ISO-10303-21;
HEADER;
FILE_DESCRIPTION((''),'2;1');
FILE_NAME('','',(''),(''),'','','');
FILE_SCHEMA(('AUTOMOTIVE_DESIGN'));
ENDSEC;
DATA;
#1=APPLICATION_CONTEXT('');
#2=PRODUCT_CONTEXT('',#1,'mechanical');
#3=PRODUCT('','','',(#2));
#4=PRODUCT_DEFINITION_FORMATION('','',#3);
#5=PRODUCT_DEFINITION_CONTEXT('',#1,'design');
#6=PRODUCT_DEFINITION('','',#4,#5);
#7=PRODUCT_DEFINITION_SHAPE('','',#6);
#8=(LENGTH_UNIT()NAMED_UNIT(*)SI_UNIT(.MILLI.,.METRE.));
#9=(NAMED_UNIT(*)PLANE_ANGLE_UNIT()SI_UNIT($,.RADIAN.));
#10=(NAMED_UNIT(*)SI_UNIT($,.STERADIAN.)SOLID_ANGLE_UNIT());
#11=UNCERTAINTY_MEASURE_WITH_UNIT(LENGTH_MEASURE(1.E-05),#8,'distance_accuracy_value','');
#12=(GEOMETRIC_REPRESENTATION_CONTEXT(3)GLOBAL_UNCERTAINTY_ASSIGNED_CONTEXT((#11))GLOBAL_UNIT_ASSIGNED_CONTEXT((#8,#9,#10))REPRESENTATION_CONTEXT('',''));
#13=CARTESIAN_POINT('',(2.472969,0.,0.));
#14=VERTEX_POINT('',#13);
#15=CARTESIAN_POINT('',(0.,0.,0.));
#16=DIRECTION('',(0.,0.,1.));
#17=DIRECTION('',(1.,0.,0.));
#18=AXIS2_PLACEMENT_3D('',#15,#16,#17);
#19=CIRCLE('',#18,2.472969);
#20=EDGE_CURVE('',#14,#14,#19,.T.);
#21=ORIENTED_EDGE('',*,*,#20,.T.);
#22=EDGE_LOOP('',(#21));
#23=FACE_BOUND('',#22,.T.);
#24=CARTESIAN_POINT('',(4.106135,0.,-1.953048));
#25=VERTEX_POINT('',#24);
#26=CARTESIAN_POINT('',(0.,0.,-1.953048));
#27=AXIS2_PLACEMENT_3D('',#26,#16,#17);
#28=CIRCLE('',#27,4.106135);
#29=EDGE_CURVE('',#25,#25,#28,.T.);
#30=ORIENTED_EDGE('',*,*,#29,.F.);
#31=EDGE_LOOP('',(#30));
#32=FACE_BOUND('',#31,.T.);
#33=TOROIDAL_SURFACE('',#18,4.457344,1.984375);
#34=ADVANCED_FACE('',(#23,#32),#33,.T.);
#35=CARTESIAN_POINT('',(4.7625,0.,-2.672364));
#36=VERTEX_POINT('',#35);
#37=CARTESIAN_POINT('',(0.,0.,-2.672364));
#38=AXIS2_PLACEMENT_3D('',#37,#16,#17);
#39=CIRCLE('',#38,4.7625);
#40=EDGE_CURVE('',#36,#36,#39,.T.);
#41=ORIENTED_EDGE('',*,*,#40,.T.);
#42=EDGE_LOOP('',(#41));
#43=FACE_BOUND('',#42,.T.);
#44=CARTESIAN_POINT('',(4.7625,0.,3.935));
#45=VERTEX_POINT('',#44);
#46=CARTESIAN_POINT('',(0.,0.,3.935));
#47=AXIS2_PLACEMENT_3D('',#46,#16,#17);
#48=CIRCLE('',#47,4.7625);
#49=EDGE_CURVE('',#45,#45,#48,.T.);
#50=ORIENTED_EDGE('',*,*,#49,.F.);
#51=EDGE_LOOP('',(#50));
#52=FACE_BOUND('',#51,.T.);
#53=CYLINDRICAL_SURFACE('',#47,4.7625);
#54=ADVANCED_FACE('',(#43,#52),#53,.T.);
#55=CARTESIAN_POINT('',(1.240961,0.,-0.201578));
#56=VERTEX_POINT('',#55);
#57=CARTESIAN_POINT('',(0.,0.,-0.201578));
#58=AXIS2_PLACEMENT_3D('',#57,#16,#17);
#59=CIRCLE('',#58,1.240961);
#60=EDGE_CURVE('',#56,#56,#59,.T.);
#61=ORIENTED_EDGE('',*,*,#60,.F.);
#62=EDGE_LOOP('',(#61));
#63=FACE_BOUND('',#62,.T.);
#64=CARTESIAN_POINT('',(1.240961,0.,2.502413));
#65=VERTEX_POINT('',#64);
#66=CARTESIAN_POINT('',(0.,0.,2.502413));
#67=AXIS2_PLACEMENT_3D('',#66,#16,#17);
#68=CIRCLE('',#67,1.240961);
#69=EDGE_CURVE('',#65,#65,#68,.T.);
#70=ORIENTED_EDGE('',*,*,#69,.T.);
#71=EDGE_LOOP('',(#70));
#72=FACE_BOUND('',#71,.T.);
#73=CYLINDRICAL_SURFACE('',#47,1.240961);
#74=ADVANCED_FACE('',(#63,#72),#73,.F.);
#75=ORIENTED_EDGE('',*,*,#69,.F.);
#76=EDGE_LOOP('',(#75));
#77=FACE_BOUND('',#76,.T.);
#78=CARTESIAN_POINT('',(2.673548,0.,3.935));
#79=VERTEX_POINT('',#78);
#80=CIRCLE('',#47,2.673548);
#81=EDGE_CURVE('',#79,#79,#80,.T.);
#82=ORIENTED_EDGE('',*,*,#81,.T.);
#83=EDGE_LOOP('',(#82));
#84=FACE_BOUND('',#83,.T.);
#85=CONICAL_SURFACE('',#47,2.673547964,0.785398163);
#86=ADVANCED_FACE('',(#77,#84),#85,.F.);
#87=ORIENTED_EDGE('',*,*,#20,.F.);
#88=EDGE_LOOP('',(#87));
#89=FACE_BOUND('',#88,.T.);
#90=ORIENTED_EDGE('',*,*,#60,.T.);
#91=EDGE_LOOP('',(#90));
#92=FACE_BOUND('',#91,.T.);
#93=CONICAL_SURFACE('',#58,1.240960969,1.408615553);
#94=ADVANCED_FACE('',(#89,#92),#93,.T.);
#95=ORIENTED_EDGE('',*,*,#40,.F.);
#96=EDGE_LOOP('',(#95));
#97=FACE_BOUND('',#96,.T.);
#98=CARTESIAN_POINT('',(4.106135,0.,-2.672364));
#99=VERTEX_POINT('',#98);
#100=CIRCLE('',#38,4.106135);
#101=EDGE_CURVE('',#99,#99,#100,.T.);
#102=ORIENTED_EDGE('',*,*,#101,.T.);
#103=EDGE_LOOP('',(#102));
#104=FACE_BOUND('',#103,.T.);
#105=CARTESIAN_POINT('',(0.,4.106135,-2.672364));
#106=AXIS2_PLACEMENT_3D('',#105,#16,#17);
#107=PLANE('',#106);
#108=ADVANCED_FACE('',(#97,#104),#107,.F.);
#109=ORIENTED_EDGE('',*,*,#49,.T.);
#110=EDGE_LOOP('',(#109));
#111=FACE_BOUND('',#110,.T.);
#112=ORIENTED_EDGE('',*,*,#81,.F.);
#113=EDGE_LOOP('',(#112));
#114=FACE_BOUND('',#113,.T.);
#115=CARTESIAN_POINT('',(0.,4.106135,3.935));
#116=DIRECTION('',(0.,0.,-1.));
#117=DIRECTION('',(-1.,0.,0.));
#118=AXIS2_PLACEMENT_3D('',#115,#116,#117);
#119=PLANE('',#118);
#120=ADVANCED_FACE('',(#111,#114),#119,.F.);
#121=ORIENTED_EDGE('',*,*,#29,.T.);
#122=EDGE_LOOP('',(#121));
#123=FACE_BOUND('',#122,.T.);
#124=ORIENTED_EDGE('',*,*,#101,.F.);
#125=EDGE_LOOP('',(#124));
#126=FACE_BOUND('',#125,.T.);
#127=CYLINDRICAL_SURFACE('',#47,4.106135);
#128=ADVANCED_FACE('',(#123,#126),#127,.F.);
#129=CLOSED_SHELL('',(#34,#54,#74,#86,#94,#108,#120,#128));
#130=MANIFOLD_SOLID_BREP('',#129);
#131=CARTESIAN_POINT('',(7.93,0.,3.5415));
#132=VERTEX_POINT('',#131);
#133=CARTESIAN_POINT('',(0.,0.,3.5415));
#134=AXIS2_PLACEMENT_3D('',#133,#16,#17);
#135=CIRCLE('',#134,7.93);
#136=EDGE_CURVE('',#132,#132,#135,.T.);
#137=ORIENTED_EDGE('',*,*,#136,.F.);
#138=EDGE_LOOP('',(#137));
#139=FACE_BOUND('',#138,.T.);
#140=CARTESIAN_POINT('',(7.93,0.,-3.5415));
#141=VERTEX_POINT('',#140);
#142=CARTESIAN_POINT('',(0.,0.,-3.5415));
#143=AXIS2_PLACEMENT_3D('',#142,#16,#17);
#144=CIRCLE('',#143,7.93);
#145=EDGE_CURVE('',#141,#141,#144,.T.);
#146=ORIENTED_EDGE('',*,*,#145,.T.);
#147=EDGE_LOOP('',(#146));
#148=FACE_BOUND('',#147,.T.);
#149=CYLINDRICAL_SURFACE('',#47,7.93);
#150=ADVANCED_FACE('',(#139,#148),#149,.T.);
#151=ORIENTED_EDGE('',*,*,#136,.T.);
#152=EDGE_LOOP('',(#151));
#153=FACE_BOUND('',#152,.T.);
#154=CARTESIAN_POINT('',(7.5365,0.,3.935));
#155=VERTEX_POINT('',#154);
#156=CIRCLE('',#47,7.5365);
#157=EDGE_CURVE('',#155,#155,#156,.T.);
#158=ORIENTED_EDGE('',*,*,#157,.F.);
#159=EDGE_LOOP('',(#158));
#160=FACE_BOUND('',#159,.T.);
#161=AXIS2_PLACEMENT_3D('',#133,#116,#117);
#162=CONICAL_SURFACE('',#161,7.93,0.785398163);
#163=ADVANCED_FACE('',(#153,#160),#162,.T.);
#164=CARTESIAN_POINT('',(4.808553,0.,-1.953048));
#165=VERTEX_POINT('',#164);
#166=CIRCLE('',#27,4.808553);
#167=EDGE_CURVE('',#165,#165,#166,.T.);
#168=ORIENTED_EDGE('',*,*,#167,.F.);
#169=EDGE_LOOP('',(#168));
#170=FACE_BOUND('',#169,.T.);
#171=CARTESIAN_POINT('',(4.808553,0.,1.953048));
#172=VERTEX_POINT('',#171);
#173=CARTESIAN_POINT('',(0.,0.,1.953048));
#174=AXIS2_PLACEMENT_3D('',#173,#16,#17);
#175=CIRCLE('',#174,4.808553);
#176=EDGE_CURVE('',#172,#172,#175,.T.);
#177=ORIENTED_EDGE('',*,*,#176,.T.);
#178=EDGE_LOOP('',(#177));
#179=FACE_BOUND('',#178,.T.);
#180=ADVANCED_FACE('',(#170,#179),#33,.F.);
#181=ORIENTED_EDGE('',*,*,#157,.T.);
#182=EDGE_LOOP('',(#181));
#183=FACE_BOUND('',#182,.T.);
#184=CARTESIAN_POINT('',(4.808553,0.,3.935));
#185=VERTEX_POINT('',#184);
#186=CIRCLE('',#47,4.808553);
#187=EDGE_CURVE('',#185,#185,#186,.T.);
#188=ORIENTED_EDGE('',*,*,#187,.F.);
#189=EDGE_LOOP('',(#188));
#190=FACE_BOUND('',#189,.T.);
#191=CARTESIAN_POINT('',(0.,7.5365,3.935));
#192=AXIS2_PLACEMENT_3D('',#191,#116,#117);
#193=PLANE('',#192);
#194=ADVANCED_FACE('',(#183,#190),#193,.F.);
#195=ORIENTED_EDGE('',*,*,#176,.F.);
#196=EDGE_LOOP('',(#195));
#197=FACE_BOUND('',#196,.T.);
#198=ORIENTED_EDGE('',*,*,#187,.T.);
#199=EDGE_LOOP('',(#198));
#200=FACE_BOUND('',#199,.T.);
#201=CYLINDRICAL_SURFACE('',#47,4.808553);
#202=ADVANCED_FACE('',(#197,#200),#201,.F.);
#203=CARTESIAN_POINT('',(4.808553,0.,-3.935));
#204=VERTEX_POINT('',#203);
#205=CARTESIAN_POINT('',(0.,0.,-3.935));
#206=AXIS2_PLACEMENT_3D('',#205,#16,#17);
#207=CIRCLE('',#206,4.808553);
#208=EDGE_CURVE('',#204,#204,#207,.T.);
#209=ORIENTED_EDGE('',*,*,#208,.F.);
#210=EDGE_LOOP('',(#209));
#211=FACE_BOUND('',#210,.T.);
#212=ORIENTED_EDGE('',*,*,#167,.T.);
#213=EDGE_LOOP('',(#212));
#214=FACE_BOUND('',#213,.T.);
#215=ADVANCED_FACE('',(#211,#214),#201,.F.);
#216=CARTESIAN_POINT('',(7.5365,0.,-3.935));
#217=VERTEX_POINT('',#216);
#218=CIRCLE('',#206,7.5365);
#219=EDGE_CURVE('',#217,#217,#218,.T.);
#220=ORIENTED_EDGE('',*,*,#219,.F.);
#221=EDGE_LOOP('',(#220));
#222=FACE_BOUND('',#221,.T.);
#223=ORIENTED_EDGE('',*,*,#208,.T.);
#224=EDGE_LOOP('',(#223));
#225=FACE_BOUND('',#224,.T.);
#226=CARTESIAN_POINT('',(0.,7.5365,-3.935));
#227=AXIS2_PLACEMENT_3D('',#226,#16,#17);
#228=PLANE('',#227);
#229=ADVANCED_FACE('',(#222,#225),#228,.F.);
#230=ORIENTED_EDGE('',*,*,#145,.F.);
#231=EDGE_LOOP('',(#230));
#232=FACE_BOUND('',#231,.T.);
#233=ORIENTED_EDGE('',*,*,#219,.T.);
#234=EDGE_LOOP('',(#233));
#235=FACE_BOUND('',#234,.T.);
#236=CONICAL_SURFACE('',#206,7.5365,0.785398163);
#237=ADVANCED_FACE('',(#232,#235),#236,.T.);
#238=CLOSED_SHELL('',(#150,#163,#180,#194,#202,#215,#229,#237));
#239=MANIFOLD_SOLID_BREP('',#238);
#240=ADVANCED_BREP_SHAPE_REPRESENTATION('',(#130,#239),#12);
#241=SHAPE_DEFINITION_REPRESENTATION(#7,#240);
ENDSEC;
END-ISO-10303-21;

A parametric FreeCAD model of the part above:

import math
import FreeCAD as App
import Part
import Sketcher
Q = App.Units.Quantity

doc = App.newDocument("Part")
params = doc.addObject("Spreadsheet::Sheet", "Params")
for row, (alias, value) in enumerate([
    ("sketch1_radius", "0.078125 in"),
    ("revolution_angle", "360 deg"),
    ("sketch2_radius", "0.078125 in"),
    ("revolution2_angle", "360 deg"),
    ("sketch3_radius", "0.078125 in"),
    ("revolution3_angle", "360 deg"),
], start=1):
    params.set(f"A{row}", alias)
    params.set(f"B{row}", "=" + value)
    params.setAlias(f"B{row}", alias)

body = doc.addObject("PartDesign::Body", "Body")

# Sketch on YZ plane
sketch1 = body.newObject("Sketcher::SketchObject", "Sketch")
sketch1.AttachmentSupport = (doc.getObject("YZ_Plane"), [""])
sketch1.MapMode = "FlatFace"
sketch1.addGeometry(Part.LineSegment(App.Vector(7.9, -3.5, 0), App.Vector(7.9, 3.5, 0)), False)
sketch1.addGeometry(Part.LineSegment(App.Vector(7.9, 3.5, 0), App.Vector(7.5, 3.9, 0)), False)
sketch1.addGeometry(Part.LineSegment(App.Vector(7.5, 3.9, 0), App.Vector(4.8, 3.9, 0)), False)
sketch1.addGeometry(Part.LineSegment(App.Vector(4.8, 3.9, 0), App.Vector(4.8, 2, 0)), False)
sketch1.addGeometry(Part.ArcOfCircle(Part.Circle(App.Vector(4.5, 0, 0), App.Vector(0, 0, 1), 2), math.radians(-80), math.radians(80)), False)
sketch1.addGeometry(Part.LineSegment(App.Vector(4.8, -2, 0), App.Vector(4.8, -3.9, 0)), False)
sketch1.addGeometry(Part.LineSegment(App.Vector(4.8, -3.9, 0), App.Vector(7.5, -3.9, 0)), False)
sketch1.addGeometry(Part.LineSegment(App.Vector(7.5, -3.9, 0), App.Vector(7.9, -3.5, 0)), False)
sketch1.addConstraint(Sketcher.Constraint("Coincident", 0, 2, 1, 1))
sketch1.addConstraint(Sketcher.Constraint("Coincident", 1, 2, 2, 1))
sketch1.addConstraint(Sketcher.Constraint("Coincident", 2, 2, 3, 1))
sketch1.addConstraint(Sketcher.Constraint("Coincident", 3, 2, 4, 2))
sketch1.addConstraint(Sketcher.Constraint("Coincident", 4, 1, 5, 1))
sketch1.addConstraint(Sketcher.Constraint("Coincident", 5, 2, 6, 1))
sketch1.addConstraint(Sketcher.Constraint("Coincident", 6, 2, 7, 1))
sketch1.addConstraint(Sketcher.Constraint("Coincident", 7, 2, 0, 1))
sketch1.addConstraint(Sketcher.Constraint("Vertical", 0))
sketch1.addConstraint(Sketcher.Constraint("Horizontal", 2))
sketch1.addConstraint(Sketcher.Constraint("Vertical", 3))
sketch1.addConstraint(Sketcher.Constraint("Vertical", 5))
sketch1.addConstraint(Sketcher.Constraint("Horizontal", 6))
sketch1.addConstraint(Sketcher.Constraint("Symmetric", 3, 2, 4, 1, -1))
sketch1.addConstraint(Sketcher.Constraint("Symmetric", 1, 2, 6, 2, -1))
sketch1.addConstraint(Sketcher.Constraint("Perpendicular", 1, 7))
sketch1.addConstraint(Sketcher.Constraint("Equal", 1, 7))
sketch1.addConstraint(Sketcher.Constraint("Radius", 4, Q("0.078125 in")))
sketch1.addConstraint(Sketcher.Constraint("DistanceY", 0, 1, 0, 2, Q("7.083 mm")))
sketch1.addConstraint(Sketcher.Constraint("DistanceY", 3, 2, 3, 1, Q("1.981952 mm")))
sketch1.addConstraint(Sketcher.Constraint("DistanceX", -1, 1, 0, 2, Q("7.93 mm")))
sketch1.addConstraint(Sketcher.Constraint("DistanceX", -1, 1, 1, 2, Q("7.5365 mm")))
sketch1.addConstraint(Sketcher.Constraint("DistanceX", 2, 2, 2, 1, Q("2.727947 mm")))
sketch1.setExpression("Constraints[17]", "Params.sketch1_radius")
revolution = body.newObject("PartDesign::Revolution", "Revolution")
revolution.Profile = sketch1
revolution.ReferenceAxis = (sketch1, ["V_Axis"])
revolution.setExpression("Angle", "Params.revolution_angle")
body2 = doc.addObject("PartDesign::Body", "Body001")

# Sketch on YZ plane
sketch2 = body2.newObject("Sketcher::SketchObject", "Sketch001")
sketch2.AttachmentSupport = (doc.getObject("YZ_Plane001"), [""])
sketch2.MapMode = "FlatFace"
sketch2.addGeometry(Part.LineSegment(App.Vector(4.1, 2, 0), App.Vector(4.1, 3.9, 0)), False)
sketch2.addGeometry(Part.LineSegment(App.Vector(4.1, 3.9, 0), App.Vector(2.7, 3.9, 0)), False)
sketch2.addGeometry(Part.LineSegment(App.Vector(2.7, 3.9, 0), App.Vector(1.2, 2.5, 0)), False)
sketch2.addGeometry(Part.LineSegment(App.Vector(1.2, 2.5, 0), App.Vector(1.2, -0.2, 0)), False)
sketch2.addGeometry(Part.LineSegment(App.Vector(1.2, -0.2, 0), App.Vector(2.5, 0, 0)), False)
sketch2.addGeometry(Part.ArcOfCircle(Part.Circle(App.Vector(4.5, 0, 0), App.Vector(0, 0, 1), 2), math.radians(100), math.radians(180)), False)
sketch2.addConstraint(Sketcher.Constraint("Coincident", 0, 2, 1, 1))
sketch2.addConstraint(Sketcher.Constraint("Coincident", 1, 2, 2, 1))
sketch2.addConstraint(Sketcher.Constraint("Coincident", 2, 2, 3, 1))
sketch2.addConstraint(Sketcher.Constraint("Coincident", 3, 2, 4, 1))
sketch2.addConstraint(Sketcher.Constraint("Coincident", 4, 2, 5, 2))
sketch2.addConstraint(Sketcher.Constraint("Coincident", 5, 1, 0, 1))
sketch2.addConstraint(Sketcher.Constraint("Vertical", 0))
sketch2.addConstraint(Sketcher.Constraint("Horizontal", 1))
sketch2.addConstraint(Sketcher.Constraint("Vertical", 3))
sketch2.addConstraint(Sketcher.Constraint("PointOnObject", 5, 3, -1))
sketch2.addConstraint(Sketcher.Constraint("PointOnObject", 4, 2, -1))
sketch2.addConstraint(Sketcher.Constraint("Angle", 2, Q("-135 deg")))
sketch2.addConstraint(Sketcher.Constraint("Radius", 5, Q("0.078125 in")))
sketch2.addConstraint(Sketcher.Constraint("DistanceY", 0, 1, 0, 2, Q("1.981952 mm")))
sketch2.addConstraint(Sketcher.Constraint("DistanceY", 3, 2, 3, 1, Q("2.703991 mm")))
sketch2.addConstraint(Sketcher.Constraint("DistanceY", -1, 1, 0, 2, Q("3.935 mm")))
sketch2.addConstraint(Sketcher.Constraint("Distance", 4, Q("1.24839 mm")))
sketch2.addConstraint(Sketcher.Constraint("DistanceX", 1, 2, 1, 1, Q("1.432587 mm")))
sketch2.addConstraint(Sketcher.Constraint("DistanceX", -1, 1, 2, 2, Q("1.240961 mm")))
sketch2.setExpression("Constraints[12]", "Params.sketch2_radius")
revolution2 = body2.newObject("PartDesign::Revolution", "Revolution001")
revolution2.Profile = sketch2
revolution2.ReferenceAxis = (sketch2, ["V_Axis"])
revolution2.setExpression("Angle", "Params.revolution2_angle")

# Sketch on YZ plane
sketch3 = body2.newObject("Sketcher::SketchObject", "Sketch002")
sketch3.AttachmentSupport = (doc.getObject("YZ_Plane001"), [""])
sketch3.MapMode = "FlatFace"
sketch3.addGeometry(Part.LineSegment(App.Vector(2.7, 3.9, 0), App.Vector(1.2, 2.5, 0)), False)
sketch3.addGeometry(Part.LineSegment(App.Vector(1.2, 2.5, 0), App.Vector(1.2, 0, 0)), False)
sketch3.addGeometry(Part.LineSegment(App.Vector(1.2, 0, 0), App.Vector(2.5, 0, 0)), False)
sketch3.addGeometry(Part.ArcOfCircle(Part.Circle(App.Vector(4.5, 0, 0), App.Vector(0, 0, 1), 2), math.radians(180), math.radians(260)), False)
sketch3.addGeometry(Part.LineSegment(App.Vector(4.1, -2, 0), App.Vector(4.1, -2.7, 0)), False)
sketch3.addGeometry(Part.LineSegment(App.Vector(4.1, -2.7, 0), App.Vector(4.8, -2.7, 0)), False)
sketch3.addGeometry(Part.LineSegment(App.Vector(4.8, -2.7, 0), App.Vector(4.8, 3.9, 0)), False)
sketch3.addGeometry(Part.LineSegment(App.Vector(4.8, 3.9, 0), App.Vector(2.7, 3.9, 0)), False)
sketch3.addConstraint(Sketcher.Constraint("Coincident", 0, 2, 1, 1))
sketch3.addConstraint(Sketcher.Constraint("Coincident", 1, 2, 2, 1))
sketch3.addConstraint(Sketcher.Constraint("Coincident", 2, 2, 3, 1))
sketch3.addConstraint(Sketcher.Constraint("Coincident", 3, 2, 4, 1))
sketch3.addConstraint(Sketcher.Constraint("Coincident", 4, 2, 5, 1))
sketch3.addConstraint(Sketcher.Constraint("Coincident", 5, 2, 6, 1))
sketch3.addConstraint(Sketcher.Constraint("Coincident", 6, 2, 7, 1))
sketch3.addConstraint(Sketcher.Constraint("Coincident", 7, 2, 0, 1))
sketch3.addConstraint(Sketcher.Constraint("Vertical", 1))
sketch3.addConstraint(Sketcher.Constraint("Horizontal", 2))
sketch3.addConstraint(Sketcher.Constraint("Vertical", 4))
sketch3.addConstraint(Sketcher.Constraint("Horizontal", 5))
sketch3.addConstraint(Sketcher.Constraint("Vertical", 6))
sketch3.addConstraint(Sketcher.Constraint("Horizontal", 7))
sketch3.addConstraint(Sketcher.Constraint("PointOnObject", 3, 3, -1))
sketch3.addConstraint(Sketcher.Constraint("PointOnObject", 1, 2, -1))
sketch3.addConstraint(Sketcher.Constraint("Angle", 0, Q("-135 deg")))
sketch3.addConstraint(Sketcher.Constraint("Radius", 3, Q("0.078125 in")))
sketch3.addConstraint(Sketcher.Constraint("DistanceX", -1, 1, 5, 2, Q("0.1875 in")))
sketch3.addConstraint(Sketcher.Constraint("DistanceY", -1, 1, 6, 2, Q("3.935 mm")))
sketch3.addConstraint(Sketcher.Constraint("DistanceX", 2, 1, 2, 2, Q("1.232008 mm")))
sketch3.addConstraint(Sketcher.Constraint("DistanceX", 5, 1, 5, 2, Q("0.656365 mm")))
sketch3.addConstraint(Sketcher.Constraint("DistanceX", 7, 2, 7, 1, Q("2.088952 mm")))
sketch3.addConstraint(Sketcher.Constraint("DistanceY", 1, 2, 1, 1, Q("2.502413 mm")))
sketch3.addConstraint(Sketcher.Constraint("DistanceY", 4, 2, 4, 1, Q("0.719316 mm")))
sketch3.setExpression("Constraints[17]", "Params.sketch3_radius")
revolution3 = body2.newObject("PartDesign::Revolution", "Revolution002")
revolution3.Profile = sketch3
revolution3.ReferenceAxis = (sketch3, ["V_Axis"])
revolution3.setExpression("Angle", "Params.revolution3_angle")

doc.recompute()
